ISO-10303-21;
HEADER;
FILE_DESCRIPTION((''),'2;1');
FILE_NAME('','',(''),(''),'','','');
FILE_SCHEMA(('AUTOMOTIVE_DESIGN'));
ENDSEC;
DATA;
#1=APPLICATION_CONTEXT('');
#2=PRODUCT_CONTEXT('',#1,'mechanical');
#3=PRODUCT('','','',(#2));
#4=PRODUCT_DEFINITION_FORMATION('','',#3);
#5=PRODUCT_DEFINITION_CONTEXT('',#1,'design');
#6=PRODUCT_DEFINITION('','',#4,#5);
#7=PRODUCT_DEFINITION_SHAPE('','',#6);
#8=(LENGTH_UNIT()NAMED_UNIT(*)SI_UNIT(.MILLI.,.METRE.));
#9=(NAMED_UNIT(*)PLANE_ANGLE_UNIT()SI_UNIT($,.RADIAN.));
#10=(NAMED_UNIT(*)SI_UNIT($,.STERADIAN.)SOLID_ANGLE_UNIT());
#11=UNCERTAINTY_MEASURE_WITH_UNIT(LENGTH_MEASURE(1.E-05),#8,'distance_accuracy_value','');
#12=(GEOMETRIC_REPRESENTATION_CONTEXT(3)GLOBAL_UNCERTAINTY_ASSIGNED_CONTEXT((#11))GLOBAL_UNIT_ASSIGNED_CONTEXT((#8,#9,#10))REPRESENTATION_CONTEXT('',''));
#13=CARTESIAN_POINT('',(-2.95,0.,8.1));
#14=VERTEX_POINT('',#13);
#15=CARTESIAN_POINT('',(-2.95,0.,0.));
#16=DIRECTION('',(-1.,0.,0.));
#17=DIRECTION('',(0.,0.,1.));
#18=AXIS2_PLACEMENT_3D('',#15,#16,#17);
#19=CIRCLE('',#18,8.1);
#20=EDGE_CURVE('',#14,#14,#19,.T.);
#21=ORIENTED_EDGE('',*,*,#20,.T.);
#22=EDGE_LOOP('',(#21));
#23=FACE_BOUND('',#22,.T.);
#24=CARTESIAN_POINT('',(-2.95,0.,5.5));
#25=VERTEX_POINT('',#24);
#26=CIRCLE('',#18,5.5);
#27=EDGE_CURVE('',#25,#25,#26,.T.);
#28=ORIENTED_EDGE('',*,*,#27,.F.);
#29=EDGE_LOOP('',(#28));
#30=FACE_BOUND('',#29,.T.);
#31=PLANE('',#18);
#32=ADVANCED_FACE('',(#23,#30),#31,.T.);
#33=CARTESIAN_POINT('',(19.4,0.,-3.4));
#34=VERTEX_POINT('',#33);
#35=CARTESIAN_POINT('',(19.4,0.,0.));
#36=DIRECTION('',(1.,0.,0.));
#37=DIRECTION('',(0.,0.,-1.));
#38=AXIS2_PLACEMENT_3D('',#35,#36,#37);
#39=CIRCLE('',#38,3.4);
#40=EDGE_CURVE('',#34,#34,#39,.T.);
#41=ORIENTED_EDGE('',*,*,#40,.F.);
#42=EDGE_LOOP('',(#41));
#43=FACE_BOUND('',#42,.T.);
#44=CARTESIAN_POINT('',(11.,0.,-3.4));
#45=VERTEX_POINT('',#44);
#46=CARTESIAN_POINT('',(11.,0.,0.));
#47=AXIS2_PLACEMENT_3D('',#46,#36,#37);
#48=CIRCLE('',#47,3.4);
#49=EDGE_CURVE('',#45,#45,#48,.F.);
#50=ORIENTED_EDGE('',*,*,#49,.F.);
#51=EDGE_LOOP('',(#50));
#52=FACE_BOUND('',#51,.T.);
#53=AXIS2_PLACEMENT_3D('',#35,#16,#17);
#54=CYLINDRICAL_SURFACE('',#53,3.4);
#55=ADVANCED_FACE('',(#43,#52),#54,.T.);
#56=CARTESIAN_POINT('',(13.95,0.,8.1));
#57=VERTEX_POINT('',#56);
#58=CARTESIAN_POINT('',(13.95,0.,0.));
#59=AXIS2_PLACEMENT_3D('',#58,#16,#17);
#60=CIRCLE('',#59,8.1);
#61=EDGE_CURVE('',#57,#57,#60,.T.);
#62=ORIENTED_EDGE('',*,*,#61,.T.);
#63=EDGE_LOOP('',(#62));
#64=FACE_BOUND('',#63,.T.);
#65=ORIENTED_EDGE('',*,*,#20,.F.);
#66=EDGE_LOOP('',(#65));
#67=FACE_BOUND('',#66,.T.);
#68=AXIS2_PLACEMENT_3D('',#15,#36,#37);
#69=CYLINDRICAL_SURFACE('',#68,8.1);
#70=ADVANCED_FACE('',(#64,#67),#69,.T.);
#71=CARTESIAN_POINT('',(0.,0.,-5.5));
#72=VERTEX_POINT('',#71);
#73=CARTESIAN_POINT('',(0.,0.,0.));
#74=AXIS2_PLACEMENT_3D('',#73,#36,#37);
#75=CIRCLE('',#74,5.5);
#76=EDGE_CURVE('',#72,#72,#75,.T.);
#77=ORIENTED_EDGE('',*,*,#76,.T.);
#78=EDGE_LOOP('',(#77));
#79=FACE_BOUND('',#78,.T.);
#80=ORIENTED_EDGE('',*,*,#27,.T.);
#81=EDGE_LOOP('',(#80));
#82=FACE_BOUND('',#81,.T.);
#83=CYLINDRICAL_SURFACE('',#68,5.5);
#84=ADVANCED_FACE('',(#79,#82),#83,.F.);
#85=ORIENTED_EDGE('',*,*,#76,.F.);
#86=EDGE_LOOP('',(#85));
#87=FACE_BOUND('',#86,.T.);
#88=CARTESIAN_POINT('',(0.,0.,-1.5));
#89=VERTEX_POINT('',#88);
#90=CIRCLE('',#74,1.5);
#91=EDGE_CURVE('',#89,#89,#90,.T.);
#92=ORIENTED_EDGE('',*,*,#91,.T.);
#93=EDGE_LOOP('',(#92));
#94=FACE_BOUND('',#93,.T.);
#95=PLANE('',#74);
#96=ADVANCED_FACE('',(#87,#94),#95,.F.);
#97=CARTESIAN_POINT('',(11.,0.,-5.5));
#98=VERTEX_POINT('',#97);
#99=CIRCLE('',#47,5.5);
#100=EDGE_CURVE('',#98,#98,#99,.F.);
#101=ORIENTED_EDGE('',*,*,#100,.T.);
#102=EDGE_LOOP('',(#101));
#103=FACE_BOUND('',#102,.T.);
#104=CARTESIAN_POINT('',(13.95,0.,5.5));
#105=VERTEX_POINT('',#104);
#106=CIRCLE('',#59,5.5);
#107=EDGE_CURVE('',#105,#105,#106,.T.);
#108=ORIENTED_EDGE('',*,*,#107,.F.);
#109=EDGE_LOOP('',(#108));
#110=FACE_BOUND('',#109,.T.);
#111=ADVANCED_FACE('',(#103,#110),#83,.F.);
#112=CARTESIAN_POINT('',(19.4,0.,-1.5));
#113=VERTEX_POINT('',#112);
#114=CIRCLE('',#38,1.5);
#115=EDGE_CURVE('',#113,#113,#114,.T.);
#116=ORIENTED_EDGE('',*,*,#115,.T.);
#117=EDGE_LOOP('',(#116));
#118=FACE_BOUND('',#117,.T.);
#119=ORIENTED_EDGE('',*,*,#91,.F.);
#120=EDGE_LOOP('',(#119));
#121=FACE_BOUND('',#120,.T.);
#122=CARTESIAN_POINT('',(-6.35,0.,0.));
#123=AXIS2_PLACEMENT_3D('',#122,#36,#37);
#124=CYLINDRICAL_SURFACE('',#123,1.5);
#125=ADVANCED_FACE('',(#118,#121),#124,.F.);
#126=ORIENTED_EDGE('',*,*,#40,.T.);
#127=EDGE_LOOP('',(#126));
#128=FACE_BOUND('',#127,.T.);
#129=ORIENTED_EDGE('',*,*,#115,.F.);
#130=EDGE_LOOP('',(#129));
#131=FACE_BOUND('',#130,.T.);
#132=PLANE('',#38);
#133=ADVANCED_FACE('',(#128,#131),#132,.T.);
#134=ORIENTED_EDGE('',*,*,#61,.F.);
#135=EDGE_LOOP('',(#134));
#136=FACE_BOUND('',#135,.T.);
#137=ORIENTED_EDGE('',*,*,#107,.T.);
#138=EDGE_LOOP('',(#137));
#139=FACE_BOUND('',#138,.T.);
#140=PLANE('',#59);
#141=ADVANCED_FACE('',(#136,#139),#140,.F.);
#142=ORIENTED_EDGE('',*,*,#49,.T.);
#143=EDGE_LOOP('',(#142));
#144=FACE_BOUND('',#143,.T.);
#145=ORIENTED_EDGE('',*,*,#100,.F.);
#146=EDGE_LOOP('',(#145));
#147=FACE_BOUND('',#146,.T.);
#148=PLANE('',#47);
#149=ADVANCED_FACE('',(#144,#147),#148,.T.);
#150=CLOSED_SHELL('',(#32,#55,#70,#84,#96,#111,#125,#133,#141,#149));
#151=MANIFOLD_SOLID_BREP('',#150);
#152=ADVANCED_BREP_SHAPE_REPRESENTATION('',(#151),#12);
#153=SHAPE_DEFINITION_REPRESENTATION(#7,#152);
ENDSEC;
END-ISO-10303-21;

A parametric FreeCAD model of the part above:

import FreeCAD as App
import Part
import Sketcher
from FreeCAD import Vector

doc = App.newDocument("Part")
params = doc.addObject("Spreadsheet::Sheet", "Params")
for row, (alias, value) in enumerate([
    ("sketch1_diameter", "11 mm"),
    ("pad1_length", "11 mm"),
    ("sketch2_diameter", "5.4 mm"),
    ("pocket1_length", "9.35 mm"),
    ("sketch3_diameter", "6.8 mm"),
    ("pad2_length", "17.75 mm"),
    ("sketch4_diameter", "3 mm"),
    ("pocket2_length", "25.75 mm"),
    ("sketch5_diameter", "11 mm"),
    ("sketch5_diameter2", "16.2 mm"),
    ("pad3_length", "2.95 mm"),
    ("pad3_length2", "13.95 mm"),
], start=1):
    params.set(f"A{row}", alias)
    params.set(f"B{row}", "=" + value)
    params.setAlias(f"B{row}", alias)

body = doc.addObject("PartDesign::Body", "Body")

# Sketch on YZ plane
sketch1 = body.newObject("Sketcher::SketchObject", "Sketch")
sketch1.AttachmentSupport = (doc.getObject("YZ_Plane"), [""])
sketch1.MapMode = "FlatFace"
sketch1.addGeometry(Part.Circle(Vector(0, 0, 0), Vector(0, 0, 1), 6), False)
sketch1.addConstraint([
    Sketcher.Constraint("Coincident", 0, 3, -1, 1),
    Sketcher.Constraint("Diameter", 0, 11.0),
])
sketch1.setExpression("Constraints[1]", "Params.sketch1_diameter")
pad1 = body.newObject("PartDesign::Pad", "Pad")
pad1.Profile = sketch1
pad1.setExpression("Length", "Params.pad1_length")

# Sketch on YZ plane
sketch2 = body.newObject("Sketcher::SketchObject", "Sketch001")
sketch2.AttachmentSupport = (doc.getObject("YZ_Plane"), [""])
sketch2.MapMode = "FlatFace"
sketch2.AttachmentOffset = App.Placement(Vector(0, 0, 11), App.Rotation())
sketch2.addGeometry(Part.Circle(Vector(0, 0, 0), Vector(0, 0, 1), 2.7), False)
sketch2.addConstraint([
    Sketcher.Constraint("Coincident", 0, 3, -1, 1),
    Sketcher.Constraint("Diameter", 0, 5.4),
])
sketch2.setExpression("Constraints[1]", "Params.sketch2_diameter")
pocket1 = body.newObject("PartDesign::Pocket", "Pocket")
pocket1.Profile = sketch2
pocket1.setExpression("Length", "Params.pocket1_length")

# Sketch on YZ plane
sketch3 = body.newObject("Sketcher::SketchObject", "Sketch002")
sketch3.AttachmentSupport = (doc.getObject("YZ_Plane"), [""])
sketch3.MapMode = "FlatFace"
sketch3.AttachmentOffset = App.Placement(Vector(0, 0, 1.65), App.Rotation())
sketch3.addGeometry(Part.Circle(Vector(0, 0, 0), Vector(0, 0, 1), 3.4), False)
sketch3.addConstraint([
    Sketcher.Constraint("Coincident", 0, 3, -1, 1),
    Sketcher.Constraint("Diameter", 0, 6.8),
])
sketch3.setExpression("Constraints[1]", "Params.sketch3_diameter")
pad2 = body.newObject("PartDesign::Pad", "Pad001")
pad2.Profile = sketch3
pad2.setExpression("Length", "Params.pad2_length")

# Sketch on YZ plane
sketch4 = body.newObject("Sketcher::SketchObject", "Sketch003")
sketch4.AttachmentSupport = (doc.getObject("YZ_Plane"), [""])
sketch4.MapMode = "FlatFace"
sketch4.AttachmentOffset = App.Placement(Vector(0, 0, 19.4), App.Rotation())
sketch4.addGeometry(Part.Circle(Vector(0, 0, 0), Vector(0, 0, 1), 1.5), False)
sketch4.addConstraint([
    Sketcher.Constraint("Coincident", 0, 3, -1, 1),
    Sketcher.Constraint("Diameter", 0, 3.0),
])
sketch4.setExpression("Constraints[1]", "Params.sketch4_diameter")
pocket2 = body.newObject("PartDesign::Pocket", "Pocket001")
pocket2.Profile = sketch4
pocket2.setExpression("Length", "Params.pocket2_length")

# Sketch on YZ plane
sketch5 = body.newObject("Sketcher::SketchObject", "Sketch004")
sketch5.AttachmentSupport = (doc.getObject("YZ_Plane"), [""])
sketch5.MapMode = "FlatFace"
sketch5.addGeometry([
    Part.Circle(Vector(0, 0, 0), Vector(0, 0, 1), 8),
    Part.Circle(Vector(0, 0, 0), Vector(0, 0, 1), 6),
], False)
sketch5.addConstraint([
    Sketcher.Constraint("Coincident", 0, 3, -1, 1),
    Sketcher.Constraint("Coincident", 1, 3, -1, 1),
    Sketcher.Constraint("Diameter", 1, 11.0),
    Sketcher.Constraint("Diameter", 0, 16.2),
])
sketch5.setExpression("Constraints[2]", "Params.sketch5_diameter")
sketch5.setExpression("Constraints[3]", "Params.sketch5_diameter2")
pad3 = body.newObject("PartDesign::Pad", "Pad002")
pad3.Profile = sketch5
pad3.Type = "TwoLengths"
pad3.setExpression("Length", "Params.pad3_length")
pad3.setExpression("Length2", "Params.pad3_length2")
pad3.Reversed = True

doc.recompute()
